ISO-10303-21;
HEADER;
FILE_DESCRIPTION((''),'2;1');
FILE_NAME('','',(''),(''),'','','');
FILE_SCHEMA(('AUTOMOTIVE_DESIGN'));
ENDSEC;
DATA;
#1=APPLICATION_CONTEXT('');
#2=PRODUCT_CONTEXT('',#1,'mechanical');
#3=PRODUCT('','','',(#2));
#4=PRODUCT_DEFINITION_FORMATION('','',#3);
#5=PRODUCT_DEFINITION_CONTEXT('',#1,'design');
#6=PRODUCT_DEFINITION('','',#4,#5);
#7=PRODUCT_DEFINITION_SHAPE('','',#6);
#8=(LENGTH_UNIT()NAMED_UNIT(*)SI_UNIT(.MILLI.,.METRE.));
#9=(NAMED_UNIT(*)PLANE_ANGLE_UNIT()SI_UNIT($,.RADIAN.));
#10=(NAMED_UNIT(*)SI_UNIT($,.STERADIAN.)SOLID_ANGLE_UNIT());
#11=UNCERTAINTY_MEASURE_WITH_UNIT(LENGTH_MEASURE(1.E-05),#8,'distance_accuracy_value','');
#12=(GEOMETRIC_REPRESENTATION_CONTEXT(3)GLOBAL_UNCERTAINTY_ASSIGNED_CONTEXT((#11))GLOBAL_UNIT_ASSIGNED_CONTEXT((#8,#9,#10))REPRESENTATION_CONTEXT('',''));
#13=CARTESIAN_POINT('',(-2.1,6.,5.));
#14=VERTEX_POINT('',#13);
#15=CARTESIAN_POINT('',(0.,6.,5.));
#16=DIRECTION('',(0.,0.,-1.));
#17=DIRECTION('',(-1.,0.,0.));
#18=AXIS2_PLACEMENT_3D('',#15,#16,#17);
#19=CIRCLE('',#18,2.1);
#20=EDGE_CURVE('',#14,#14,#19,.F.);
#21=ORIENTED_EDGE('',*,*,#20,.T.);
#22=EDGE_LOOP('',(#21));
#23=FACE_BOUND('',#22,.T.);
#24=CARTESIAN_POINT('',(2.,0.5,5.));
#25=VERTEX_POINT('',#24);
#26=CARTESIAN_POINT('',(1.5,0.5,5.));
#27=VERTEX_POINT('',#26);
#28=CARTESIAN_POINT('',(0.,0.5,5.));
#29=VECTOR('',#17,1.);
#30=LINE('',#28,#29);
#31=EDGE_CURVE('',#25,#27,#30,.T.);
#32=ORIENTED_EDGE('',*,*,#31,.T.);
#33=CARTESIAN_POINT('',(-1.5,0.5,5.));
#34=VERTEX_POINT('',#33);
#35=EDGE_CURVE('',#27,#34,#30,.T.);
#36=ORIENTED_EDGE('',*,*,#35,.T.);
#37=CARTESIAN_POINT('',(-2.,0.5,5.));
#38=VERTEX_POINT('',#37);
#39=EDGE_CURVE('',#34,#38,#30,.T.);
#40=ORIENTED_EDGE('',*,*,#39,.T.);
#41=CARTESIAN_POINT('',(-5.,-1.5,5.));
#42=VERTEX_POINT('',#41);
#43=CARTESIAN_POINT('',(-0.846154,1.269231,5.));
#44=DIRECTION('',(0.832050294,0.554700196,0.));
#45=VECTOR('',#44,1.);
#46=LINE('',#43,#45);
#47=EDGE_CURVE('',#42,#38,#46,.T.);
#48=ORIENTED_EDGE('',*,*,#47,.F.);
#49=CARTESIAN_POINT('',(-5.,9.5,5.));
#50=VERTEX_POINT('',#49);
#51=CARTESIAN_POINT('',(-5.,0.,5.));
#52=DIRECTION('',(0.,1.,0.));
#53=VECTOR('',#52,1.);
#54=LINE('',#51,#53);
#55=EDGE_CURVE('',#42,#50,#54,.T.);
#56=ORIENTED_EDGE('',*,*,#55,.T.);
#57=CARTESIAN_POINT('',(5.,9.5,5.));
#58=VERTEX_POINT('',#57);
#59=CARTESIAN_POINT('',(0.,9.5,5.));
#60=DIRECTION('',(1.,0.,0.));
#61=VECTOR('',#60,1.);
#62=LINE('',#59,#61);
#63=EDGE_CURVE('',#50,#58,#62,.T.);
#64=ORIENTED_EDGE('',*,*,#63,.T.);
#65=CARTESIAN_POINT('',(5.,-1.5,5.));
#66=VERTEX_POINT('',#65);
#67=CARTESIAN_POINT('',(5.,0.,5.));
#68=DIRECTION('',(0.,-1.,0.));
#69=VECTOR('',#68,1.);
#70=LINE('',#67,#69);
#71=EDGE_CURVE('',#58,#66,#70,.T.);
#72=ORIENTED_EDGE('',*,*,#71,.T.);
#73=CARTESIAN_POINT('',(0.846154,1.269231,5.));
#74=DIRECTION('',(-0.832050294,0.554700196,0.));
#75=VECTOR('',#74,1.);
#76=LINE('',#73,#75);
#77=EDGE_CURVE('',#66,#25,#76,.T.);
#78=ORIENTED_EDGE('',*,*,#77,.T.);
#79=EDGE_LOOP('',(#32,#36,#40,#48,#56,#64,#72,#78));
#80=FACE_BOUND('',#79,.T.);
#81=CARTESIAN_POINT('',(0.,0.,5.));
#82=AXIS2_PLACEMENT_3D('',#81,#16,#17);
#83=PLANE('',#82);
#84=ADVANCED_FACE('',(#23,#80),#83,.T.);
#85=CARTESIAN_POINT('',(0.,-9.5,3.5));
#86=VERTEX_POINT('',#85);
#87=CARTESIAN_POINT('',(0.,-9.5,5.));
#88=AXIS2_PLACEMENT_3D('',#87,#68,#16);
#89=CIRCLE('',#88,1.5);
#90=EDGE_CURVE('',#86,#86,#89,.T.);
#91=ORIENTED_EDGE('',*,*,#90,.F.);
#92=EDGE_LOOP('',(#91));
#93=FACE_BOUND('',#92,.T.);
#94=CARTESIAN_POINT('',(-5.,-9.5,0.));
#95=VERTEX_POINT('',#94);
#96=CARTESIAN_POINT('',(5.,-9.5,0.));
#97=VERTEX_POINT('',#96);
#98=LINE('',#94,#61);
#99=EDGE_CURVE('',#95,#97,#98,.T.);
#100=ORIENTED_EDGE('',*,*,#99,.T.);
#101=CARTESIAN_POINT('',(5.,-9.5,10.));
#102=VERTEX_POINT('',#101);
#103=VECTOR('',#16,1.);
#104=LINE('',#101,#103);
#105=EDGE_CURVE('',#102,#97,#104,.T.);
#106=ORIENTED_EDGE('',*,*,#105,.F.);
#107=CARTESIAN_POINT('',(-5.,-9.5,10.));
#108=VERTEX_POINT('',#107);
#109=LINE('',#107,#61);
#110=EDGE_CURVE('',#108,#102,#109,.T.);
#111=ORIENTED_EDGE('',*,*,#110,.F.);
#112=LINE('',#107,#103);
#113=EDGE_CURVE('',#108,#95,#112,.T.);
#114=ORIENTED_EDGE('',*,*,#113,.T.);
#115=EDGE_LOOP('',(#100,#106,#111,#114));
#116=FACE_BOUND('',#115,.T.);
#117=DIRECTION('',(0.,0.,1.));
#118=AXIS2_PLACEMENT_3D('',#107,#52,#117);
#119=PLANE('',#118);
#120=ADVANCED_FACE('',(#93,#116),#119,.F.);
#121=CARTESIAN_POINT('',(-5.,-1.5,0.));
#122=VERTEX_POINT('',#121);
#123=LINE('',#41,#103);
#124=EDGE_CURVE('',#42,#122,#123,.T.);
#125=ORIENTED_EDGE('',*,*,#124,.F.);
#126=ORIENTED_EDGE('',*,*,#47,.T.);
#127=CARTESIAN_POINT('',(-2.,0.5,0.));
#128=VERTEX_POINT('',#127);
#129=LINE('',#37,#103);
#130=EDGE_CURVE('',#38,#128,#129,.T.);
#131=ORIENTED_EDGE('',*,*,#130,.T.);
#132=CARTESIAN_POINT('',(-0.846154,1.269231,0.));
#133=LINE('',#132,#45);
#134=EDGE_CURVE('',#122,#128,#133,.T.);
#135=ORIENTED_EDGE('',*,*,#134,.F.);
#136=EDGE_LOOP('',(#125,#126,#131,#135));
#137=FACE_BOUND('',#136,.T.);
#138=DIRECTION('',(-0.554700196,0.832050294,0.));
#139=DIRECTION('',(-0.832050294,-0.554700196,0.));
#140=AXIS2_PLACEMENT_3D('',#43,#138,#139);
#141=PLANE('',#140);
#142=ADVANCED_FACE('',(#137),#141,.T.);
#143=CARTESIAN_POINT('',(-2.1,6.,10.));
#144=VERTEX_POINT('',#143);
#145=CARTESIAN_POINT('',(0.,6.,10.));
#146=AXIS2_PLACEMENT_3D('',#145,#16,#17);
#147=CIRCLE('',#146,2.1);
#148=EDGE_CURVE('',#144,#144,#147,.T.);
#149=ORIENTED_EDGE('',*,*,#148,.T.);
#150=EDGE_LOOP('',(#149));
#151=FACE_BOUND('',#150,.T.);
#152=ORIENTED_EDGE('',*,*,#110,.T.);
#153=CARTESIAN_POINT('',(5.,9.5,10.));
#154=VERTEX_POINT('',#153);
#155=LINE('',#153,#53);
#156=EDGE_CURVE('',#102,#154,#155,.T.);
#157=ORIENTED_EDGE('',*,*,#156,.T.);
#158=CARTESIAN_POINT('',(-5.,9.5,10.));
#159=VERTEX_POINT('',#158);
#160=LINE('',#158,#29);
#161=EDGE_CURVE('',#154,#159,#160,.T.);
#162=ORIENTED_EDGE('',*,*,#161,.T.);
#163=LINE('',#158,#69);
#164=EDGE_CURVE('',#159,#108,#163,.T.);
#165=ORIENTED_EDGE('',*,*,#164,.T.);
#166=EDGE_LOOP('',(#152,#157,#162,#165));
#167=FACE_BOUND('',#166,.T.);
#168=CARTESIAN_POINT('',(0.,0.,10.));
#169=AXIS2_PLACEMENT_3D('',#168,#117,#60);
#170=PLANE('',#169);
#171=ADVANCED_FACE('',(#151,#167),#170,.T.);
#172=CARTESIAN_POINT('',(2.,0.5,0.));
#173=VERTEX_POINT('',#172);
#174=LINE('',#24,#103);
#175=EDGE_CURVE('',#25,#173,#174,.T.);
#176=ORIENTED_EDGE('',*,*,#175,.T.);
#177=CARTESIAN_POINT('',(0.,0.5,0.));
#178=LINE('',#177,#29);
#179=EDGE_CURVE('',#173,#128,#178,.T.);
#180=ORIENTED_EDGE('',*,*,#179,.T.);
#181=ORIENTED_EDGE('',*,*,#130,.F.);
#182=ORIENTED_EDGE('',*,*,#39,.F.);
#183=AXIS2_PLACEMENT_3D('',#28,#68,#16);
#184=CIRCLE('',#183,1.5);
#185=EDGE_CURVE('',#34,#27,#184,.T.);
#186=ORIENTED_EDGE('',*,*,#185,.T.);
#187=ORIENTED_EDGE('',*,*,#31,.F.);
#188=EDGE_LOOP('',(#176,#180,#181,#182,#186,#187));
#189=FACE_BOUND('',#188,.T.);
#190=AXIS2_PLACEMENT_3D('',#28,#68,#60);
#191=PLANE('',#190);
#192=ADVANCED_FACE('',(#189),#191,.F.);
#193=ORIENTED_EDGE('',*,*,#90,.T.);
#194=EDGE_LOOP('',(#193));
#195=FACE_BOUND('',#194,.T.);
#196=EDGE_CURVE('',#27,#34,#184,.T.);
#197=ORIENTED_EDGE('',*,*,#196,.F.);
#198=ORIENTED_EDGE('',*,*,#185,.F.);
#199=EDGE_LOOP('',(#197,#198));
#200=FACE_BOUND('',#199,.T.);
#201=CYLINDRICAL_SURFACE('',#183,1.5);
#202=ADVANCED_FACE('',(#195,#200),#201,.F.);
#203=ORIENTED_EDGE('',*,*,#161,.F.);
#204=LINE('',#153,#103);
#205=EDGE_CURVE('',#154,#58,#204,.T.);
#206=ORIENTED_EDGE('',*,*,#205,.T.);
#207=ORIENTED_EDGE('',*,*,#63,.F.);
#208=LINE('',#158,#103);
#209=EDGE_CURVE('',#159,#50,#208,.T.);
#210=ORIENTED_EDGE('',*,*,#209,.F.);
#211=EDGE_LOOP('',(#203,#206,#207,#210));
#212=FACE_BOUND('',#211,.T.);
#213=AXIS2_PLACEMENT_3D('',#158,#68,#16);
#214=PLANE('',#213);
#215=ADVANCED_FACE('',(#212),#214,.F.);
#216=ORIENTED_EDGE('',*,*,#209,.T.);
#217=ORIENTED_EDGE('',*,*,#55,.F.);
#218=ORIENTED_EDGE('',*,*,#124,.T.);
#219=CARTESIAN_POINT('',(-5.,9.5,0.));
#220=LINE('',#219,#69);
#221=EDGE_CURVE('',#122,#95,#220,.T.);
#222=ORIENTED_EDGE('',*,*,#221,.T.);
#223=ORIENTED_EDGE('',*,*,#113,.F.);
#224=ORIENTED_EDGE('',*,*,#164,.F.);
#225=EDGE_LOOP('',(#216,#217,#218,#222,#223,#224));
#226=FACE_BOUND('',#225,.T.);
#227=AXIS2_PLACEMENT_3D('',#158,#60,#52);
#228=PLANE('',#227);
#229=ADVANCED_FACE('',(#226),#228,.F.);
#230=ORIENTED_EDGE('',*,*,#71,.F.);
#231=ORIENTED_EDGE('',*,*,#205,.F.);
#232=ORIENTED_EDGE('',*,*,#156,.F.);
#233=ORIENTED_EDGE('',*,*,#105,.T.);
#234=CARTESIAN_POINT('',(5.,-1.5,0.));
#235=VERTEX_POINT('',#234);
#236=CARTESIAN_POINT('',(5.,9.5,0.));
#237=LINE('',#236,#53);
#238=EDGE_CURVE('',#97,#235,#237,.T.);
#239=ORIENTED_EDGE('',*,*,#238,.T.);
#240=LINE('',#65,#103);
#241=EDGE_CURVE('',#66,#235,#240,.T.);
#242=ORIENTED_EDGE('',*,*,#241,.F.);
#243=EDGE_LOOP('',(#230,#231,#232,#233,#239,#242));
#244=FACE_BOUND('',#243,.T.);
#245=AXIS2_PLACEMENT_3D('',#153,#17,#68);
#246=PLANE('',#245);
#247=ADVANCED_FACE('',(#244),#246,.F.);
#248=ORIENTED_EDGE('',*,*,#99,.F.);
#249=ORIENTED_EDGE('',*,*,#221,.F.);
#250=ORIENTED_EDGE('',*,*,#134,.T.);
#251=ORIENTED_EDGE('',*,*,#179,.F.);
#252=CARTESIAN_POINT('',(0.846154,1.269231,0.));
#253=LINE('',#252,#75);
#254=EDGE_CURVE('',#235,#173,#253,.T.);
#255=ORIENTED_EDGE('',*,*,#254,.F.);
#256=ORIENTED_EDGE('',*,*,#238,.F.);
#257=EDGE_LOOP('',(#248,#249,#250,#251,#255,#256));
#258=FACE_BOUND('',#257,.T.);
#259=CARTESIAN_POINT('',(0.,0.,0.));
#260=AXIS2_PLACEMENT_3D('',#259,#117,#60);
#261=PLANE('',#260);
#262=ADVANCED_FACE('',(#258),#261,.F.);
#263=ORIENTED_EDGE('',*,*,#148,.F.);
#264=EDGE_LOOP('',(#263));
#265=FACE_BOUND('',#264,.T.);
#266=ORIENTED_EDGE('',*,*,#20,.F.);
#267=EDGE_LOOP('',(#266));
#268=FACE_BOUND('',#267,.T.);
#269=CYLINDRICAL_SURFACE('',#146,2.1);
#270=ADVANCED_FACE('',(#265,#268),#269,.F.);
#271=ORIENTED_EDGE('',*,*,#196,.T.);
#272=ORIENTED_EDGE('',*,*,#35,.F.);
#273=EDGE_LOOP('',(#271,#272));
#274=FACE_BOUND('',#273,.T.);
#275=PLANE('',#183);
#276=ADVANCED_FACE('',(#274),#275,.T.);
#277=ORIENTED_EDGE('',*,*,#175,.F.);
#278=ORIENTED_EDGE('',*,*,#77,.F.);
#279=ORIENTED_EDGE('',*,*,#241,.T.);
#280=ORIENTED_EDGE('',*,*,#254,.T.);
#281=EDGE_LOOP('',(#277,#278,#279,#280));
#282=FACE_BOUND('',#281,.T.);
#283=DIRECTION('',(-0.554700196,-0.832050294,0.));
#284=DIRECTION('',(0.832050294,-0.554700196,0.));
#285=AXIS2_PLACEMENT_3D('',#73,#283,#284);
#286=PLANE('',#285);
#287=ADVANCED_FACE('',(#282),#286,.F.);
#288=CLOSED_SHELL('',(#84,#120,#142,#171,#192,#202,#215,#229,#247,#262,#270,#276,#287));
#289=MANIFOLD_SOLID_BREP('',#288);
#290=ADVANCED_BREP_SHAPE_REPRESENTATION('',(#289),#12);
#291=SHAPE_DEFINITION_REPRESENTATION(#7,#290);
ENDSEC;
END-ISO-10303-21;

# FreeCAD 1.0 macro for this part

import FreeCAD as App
import Part
import Sketcher

V = App.Vector
Q = App.Units.Quantity


def add_polygon(sketch, points):
    """Adds a closed chain of lines whose ends are joined by coincident constraints."""
    first, n = sketch.GeometryCount, len(points)
    for a, b in zip(points, points[1:] + points[:1]):
        sketch.addGeometry(Part.LineSegment(App.Vector(*a, 0), App.Vector(*b, 0)), False)
    for i in range(n):
        sketch.addConstraint(Sketcher.Constraint("Coincident", first + i, 2, first + (i + 1) % n, 1))

doc = App.newDocument("Part")
params = doc.addObject("Spreadsheet::Sheet", "Params")
for row, (alias, value) in enumerate([
    ("sketch1_width", "10 mm"),
    ("sketch1_height", "19 mm"),
    ("pad1_length", "10 mm"),
    ("sketch2_diameter", "4.2 mm"),
    ("sketch3_width", "10 mm"),
    ("sketch3_width2", "4 mm"),
    ("sketch3_height", "11 mm"),
    ("pocket2_length", "5 mm"),
    ("sketch4_diameter", "3 mm"),
    ("pocket3_length", "10 mm"),
], start=1):
    params.set(f"A{row}", alias)
    params.set(f"B{row}", "=" + value)
    params.setAlias(f"B{row}", alias)

body = doc.addObject("PartDesign::Body", "Body")

# Sketch on XY plane
sketch1 = body.newObject("Sketcher::SketchObject", "Sketch")
sketch1.AttachmentSupport = (doc.getObject("XY_Plane"), [""])
sketch1.MapMode = "FlatFace"
add_polygon(sketch1, [(-5, 10), (-5, -10), (5, -10), (5, 10)])  # lines 0-3
sketch1.addConstraint([
    Sketcher.Constraint("Vertical", 0),
    Sketcher.Constraint("Horizontal", 1),
    Sketcher.Constraint("Vertical", 2),
    Sketcher.Constraint("Horizontal", 3),
    Sketcher.Constraint("Symmetric", 0, 2, 2, 2, -1, 1),
    Sketcher.Constraint("DistanceX", 1, 1, 1, 2, Q("10 mm")),
    Sketcher.Constraint("DistanceY", 0, 2, 0, 1, Q("19 mm")),
])
sketch1.setExpression("Constraints[9]", "Params.sketch1_width")
sketch1.setExpression("Constraints[10]", "Params.sketch1_height")
pad1 = body.newObject("PartDesign::Pad", "Pad")
pad1.Profile = sketch1
pad1.setExpression("Length", "Params.pad1_length")

# Sketch on XY plane
sketch2 = body.newObject("Sketcher::SketchObject", "Sketch001")
sketch2.AttachmentSupport = (doc.getObject("XY_Plane"), [""])
sketch2.MapMode = "FlatFace"
sketch2.addGeometry(Part.Circle(V(0, 6, 0), V(0, 0, 1), 2.1), False)
sketch2.addConstraint([
    Sketcher.Constraint("PointOnObject", 0, 3, -2),
    Sketcher.Constraint("Diameter", 0, Q("4.2 mm")),
    Sketcher.Constraint("DistanceY", -1, 1, 0, 3, Q("6 mm")),
])
sketch2.setExpression("Constraints[1]", "Params.sketch2_diameter")
pocket1 = body.newObject("PartDesign::Pocket", "Pocket")
pocket1.Profile = sketch2
pocket1.Type = "ThroughAll"
pocket1.Reversed = True

# Sketch on XY plane
sketch3 = body.newObject("Sketcher::SketchObject", "Sketch002")
sketch3.AttachmentSupport = (doc.getObject("XY_Plane"), [""])
sketch3.MapMode = "FlatFace"
add_polygon(sketch3, [(-5, 9.5), (5, 9.5), (5, -1.5), (2, 0.5), (-2, 0.5), (-5, -1.5)])  # lines 0-5
sketch3.addConstraint([
    Sketcher.Constraint("Horizontal", 0),
    Sketcher.Constraint("Vertical", 1),
    Sketcher.Constraint("Horizontal", 3),
    Sketcher.Constraint("Vertical", 5),
    Sketcher.Constraint("Symmetric", 1, 2, 4, 2, -2),
    Sketcher.Constraint("Equal", 2, 4),
    Sketcher.Constraint("DistanceX", 0, 1, 0, 2, Q("10 mm")),
    Sketcher.Constraint("DistanceX", 3, 2, 3, 1, Q("4 mm")),
    Sketcher.Constraint("DistanceY", 1, 2, 1, 1, Q("11 mm")),
    Sketcher.Constraint("DistanceY", 1, 2, 2, 2, Q("2 mm")),
    Sketcher.Constraint("DistanceY", -1, 1, 0, 2, Q("9.5 mm")),
])
sketch3.setExpression("Constraints[12]", "Params.sketch3_width")
sketch3.setExpression("Constraints[13]", "Params.sketch3_width2")
sketch3.setExpression("Constraints[14]", "Params.sketch3_height")
pocket2 = body.newObject("PartDesign::Pocket", "Pocket001")
pocket2.Profile = sketch3
pocket2.setExpression("Length", "Params.pocket2_length")
pocket2.Reversed = True

# Sketch on XZ plane
sketch4 = body.newObject("Sketcher::SketchObject", "Sketch003")
sketch4.AttachmentSupport = (doc.getObject("XZ_Plane"), [""])
sketch4.MapMode = "FlatFace"
sketch4.AttachmentOffset = App.Placement(V(0, 0, 9.5), App.Rotation())
sketch4.addGeometry(Part.Circle(V(0, 5, 0), V(0, 0, 1), 1.5), False)
sketch4.addConstraint([
    Sketcher.Constraint("PointOnObject", 0, 3, -2),
    Sketcher.Constraint("Diameter", 0, Q("3 mm")),
    Sketcher.Constraint("DistanceY", -1, 1, 0, 3, Q("5 mm")),
])
sketch4.setExpression("Constraints[1]", "Params.sketch4_diameter")
pocket3 = body.newObject("PartDesign::Pocket", "Pocket002")
pocket3.Profile = sketch4
pocket3.setExpression("Length", "Params.pocket3_length")

doc.recompute()
